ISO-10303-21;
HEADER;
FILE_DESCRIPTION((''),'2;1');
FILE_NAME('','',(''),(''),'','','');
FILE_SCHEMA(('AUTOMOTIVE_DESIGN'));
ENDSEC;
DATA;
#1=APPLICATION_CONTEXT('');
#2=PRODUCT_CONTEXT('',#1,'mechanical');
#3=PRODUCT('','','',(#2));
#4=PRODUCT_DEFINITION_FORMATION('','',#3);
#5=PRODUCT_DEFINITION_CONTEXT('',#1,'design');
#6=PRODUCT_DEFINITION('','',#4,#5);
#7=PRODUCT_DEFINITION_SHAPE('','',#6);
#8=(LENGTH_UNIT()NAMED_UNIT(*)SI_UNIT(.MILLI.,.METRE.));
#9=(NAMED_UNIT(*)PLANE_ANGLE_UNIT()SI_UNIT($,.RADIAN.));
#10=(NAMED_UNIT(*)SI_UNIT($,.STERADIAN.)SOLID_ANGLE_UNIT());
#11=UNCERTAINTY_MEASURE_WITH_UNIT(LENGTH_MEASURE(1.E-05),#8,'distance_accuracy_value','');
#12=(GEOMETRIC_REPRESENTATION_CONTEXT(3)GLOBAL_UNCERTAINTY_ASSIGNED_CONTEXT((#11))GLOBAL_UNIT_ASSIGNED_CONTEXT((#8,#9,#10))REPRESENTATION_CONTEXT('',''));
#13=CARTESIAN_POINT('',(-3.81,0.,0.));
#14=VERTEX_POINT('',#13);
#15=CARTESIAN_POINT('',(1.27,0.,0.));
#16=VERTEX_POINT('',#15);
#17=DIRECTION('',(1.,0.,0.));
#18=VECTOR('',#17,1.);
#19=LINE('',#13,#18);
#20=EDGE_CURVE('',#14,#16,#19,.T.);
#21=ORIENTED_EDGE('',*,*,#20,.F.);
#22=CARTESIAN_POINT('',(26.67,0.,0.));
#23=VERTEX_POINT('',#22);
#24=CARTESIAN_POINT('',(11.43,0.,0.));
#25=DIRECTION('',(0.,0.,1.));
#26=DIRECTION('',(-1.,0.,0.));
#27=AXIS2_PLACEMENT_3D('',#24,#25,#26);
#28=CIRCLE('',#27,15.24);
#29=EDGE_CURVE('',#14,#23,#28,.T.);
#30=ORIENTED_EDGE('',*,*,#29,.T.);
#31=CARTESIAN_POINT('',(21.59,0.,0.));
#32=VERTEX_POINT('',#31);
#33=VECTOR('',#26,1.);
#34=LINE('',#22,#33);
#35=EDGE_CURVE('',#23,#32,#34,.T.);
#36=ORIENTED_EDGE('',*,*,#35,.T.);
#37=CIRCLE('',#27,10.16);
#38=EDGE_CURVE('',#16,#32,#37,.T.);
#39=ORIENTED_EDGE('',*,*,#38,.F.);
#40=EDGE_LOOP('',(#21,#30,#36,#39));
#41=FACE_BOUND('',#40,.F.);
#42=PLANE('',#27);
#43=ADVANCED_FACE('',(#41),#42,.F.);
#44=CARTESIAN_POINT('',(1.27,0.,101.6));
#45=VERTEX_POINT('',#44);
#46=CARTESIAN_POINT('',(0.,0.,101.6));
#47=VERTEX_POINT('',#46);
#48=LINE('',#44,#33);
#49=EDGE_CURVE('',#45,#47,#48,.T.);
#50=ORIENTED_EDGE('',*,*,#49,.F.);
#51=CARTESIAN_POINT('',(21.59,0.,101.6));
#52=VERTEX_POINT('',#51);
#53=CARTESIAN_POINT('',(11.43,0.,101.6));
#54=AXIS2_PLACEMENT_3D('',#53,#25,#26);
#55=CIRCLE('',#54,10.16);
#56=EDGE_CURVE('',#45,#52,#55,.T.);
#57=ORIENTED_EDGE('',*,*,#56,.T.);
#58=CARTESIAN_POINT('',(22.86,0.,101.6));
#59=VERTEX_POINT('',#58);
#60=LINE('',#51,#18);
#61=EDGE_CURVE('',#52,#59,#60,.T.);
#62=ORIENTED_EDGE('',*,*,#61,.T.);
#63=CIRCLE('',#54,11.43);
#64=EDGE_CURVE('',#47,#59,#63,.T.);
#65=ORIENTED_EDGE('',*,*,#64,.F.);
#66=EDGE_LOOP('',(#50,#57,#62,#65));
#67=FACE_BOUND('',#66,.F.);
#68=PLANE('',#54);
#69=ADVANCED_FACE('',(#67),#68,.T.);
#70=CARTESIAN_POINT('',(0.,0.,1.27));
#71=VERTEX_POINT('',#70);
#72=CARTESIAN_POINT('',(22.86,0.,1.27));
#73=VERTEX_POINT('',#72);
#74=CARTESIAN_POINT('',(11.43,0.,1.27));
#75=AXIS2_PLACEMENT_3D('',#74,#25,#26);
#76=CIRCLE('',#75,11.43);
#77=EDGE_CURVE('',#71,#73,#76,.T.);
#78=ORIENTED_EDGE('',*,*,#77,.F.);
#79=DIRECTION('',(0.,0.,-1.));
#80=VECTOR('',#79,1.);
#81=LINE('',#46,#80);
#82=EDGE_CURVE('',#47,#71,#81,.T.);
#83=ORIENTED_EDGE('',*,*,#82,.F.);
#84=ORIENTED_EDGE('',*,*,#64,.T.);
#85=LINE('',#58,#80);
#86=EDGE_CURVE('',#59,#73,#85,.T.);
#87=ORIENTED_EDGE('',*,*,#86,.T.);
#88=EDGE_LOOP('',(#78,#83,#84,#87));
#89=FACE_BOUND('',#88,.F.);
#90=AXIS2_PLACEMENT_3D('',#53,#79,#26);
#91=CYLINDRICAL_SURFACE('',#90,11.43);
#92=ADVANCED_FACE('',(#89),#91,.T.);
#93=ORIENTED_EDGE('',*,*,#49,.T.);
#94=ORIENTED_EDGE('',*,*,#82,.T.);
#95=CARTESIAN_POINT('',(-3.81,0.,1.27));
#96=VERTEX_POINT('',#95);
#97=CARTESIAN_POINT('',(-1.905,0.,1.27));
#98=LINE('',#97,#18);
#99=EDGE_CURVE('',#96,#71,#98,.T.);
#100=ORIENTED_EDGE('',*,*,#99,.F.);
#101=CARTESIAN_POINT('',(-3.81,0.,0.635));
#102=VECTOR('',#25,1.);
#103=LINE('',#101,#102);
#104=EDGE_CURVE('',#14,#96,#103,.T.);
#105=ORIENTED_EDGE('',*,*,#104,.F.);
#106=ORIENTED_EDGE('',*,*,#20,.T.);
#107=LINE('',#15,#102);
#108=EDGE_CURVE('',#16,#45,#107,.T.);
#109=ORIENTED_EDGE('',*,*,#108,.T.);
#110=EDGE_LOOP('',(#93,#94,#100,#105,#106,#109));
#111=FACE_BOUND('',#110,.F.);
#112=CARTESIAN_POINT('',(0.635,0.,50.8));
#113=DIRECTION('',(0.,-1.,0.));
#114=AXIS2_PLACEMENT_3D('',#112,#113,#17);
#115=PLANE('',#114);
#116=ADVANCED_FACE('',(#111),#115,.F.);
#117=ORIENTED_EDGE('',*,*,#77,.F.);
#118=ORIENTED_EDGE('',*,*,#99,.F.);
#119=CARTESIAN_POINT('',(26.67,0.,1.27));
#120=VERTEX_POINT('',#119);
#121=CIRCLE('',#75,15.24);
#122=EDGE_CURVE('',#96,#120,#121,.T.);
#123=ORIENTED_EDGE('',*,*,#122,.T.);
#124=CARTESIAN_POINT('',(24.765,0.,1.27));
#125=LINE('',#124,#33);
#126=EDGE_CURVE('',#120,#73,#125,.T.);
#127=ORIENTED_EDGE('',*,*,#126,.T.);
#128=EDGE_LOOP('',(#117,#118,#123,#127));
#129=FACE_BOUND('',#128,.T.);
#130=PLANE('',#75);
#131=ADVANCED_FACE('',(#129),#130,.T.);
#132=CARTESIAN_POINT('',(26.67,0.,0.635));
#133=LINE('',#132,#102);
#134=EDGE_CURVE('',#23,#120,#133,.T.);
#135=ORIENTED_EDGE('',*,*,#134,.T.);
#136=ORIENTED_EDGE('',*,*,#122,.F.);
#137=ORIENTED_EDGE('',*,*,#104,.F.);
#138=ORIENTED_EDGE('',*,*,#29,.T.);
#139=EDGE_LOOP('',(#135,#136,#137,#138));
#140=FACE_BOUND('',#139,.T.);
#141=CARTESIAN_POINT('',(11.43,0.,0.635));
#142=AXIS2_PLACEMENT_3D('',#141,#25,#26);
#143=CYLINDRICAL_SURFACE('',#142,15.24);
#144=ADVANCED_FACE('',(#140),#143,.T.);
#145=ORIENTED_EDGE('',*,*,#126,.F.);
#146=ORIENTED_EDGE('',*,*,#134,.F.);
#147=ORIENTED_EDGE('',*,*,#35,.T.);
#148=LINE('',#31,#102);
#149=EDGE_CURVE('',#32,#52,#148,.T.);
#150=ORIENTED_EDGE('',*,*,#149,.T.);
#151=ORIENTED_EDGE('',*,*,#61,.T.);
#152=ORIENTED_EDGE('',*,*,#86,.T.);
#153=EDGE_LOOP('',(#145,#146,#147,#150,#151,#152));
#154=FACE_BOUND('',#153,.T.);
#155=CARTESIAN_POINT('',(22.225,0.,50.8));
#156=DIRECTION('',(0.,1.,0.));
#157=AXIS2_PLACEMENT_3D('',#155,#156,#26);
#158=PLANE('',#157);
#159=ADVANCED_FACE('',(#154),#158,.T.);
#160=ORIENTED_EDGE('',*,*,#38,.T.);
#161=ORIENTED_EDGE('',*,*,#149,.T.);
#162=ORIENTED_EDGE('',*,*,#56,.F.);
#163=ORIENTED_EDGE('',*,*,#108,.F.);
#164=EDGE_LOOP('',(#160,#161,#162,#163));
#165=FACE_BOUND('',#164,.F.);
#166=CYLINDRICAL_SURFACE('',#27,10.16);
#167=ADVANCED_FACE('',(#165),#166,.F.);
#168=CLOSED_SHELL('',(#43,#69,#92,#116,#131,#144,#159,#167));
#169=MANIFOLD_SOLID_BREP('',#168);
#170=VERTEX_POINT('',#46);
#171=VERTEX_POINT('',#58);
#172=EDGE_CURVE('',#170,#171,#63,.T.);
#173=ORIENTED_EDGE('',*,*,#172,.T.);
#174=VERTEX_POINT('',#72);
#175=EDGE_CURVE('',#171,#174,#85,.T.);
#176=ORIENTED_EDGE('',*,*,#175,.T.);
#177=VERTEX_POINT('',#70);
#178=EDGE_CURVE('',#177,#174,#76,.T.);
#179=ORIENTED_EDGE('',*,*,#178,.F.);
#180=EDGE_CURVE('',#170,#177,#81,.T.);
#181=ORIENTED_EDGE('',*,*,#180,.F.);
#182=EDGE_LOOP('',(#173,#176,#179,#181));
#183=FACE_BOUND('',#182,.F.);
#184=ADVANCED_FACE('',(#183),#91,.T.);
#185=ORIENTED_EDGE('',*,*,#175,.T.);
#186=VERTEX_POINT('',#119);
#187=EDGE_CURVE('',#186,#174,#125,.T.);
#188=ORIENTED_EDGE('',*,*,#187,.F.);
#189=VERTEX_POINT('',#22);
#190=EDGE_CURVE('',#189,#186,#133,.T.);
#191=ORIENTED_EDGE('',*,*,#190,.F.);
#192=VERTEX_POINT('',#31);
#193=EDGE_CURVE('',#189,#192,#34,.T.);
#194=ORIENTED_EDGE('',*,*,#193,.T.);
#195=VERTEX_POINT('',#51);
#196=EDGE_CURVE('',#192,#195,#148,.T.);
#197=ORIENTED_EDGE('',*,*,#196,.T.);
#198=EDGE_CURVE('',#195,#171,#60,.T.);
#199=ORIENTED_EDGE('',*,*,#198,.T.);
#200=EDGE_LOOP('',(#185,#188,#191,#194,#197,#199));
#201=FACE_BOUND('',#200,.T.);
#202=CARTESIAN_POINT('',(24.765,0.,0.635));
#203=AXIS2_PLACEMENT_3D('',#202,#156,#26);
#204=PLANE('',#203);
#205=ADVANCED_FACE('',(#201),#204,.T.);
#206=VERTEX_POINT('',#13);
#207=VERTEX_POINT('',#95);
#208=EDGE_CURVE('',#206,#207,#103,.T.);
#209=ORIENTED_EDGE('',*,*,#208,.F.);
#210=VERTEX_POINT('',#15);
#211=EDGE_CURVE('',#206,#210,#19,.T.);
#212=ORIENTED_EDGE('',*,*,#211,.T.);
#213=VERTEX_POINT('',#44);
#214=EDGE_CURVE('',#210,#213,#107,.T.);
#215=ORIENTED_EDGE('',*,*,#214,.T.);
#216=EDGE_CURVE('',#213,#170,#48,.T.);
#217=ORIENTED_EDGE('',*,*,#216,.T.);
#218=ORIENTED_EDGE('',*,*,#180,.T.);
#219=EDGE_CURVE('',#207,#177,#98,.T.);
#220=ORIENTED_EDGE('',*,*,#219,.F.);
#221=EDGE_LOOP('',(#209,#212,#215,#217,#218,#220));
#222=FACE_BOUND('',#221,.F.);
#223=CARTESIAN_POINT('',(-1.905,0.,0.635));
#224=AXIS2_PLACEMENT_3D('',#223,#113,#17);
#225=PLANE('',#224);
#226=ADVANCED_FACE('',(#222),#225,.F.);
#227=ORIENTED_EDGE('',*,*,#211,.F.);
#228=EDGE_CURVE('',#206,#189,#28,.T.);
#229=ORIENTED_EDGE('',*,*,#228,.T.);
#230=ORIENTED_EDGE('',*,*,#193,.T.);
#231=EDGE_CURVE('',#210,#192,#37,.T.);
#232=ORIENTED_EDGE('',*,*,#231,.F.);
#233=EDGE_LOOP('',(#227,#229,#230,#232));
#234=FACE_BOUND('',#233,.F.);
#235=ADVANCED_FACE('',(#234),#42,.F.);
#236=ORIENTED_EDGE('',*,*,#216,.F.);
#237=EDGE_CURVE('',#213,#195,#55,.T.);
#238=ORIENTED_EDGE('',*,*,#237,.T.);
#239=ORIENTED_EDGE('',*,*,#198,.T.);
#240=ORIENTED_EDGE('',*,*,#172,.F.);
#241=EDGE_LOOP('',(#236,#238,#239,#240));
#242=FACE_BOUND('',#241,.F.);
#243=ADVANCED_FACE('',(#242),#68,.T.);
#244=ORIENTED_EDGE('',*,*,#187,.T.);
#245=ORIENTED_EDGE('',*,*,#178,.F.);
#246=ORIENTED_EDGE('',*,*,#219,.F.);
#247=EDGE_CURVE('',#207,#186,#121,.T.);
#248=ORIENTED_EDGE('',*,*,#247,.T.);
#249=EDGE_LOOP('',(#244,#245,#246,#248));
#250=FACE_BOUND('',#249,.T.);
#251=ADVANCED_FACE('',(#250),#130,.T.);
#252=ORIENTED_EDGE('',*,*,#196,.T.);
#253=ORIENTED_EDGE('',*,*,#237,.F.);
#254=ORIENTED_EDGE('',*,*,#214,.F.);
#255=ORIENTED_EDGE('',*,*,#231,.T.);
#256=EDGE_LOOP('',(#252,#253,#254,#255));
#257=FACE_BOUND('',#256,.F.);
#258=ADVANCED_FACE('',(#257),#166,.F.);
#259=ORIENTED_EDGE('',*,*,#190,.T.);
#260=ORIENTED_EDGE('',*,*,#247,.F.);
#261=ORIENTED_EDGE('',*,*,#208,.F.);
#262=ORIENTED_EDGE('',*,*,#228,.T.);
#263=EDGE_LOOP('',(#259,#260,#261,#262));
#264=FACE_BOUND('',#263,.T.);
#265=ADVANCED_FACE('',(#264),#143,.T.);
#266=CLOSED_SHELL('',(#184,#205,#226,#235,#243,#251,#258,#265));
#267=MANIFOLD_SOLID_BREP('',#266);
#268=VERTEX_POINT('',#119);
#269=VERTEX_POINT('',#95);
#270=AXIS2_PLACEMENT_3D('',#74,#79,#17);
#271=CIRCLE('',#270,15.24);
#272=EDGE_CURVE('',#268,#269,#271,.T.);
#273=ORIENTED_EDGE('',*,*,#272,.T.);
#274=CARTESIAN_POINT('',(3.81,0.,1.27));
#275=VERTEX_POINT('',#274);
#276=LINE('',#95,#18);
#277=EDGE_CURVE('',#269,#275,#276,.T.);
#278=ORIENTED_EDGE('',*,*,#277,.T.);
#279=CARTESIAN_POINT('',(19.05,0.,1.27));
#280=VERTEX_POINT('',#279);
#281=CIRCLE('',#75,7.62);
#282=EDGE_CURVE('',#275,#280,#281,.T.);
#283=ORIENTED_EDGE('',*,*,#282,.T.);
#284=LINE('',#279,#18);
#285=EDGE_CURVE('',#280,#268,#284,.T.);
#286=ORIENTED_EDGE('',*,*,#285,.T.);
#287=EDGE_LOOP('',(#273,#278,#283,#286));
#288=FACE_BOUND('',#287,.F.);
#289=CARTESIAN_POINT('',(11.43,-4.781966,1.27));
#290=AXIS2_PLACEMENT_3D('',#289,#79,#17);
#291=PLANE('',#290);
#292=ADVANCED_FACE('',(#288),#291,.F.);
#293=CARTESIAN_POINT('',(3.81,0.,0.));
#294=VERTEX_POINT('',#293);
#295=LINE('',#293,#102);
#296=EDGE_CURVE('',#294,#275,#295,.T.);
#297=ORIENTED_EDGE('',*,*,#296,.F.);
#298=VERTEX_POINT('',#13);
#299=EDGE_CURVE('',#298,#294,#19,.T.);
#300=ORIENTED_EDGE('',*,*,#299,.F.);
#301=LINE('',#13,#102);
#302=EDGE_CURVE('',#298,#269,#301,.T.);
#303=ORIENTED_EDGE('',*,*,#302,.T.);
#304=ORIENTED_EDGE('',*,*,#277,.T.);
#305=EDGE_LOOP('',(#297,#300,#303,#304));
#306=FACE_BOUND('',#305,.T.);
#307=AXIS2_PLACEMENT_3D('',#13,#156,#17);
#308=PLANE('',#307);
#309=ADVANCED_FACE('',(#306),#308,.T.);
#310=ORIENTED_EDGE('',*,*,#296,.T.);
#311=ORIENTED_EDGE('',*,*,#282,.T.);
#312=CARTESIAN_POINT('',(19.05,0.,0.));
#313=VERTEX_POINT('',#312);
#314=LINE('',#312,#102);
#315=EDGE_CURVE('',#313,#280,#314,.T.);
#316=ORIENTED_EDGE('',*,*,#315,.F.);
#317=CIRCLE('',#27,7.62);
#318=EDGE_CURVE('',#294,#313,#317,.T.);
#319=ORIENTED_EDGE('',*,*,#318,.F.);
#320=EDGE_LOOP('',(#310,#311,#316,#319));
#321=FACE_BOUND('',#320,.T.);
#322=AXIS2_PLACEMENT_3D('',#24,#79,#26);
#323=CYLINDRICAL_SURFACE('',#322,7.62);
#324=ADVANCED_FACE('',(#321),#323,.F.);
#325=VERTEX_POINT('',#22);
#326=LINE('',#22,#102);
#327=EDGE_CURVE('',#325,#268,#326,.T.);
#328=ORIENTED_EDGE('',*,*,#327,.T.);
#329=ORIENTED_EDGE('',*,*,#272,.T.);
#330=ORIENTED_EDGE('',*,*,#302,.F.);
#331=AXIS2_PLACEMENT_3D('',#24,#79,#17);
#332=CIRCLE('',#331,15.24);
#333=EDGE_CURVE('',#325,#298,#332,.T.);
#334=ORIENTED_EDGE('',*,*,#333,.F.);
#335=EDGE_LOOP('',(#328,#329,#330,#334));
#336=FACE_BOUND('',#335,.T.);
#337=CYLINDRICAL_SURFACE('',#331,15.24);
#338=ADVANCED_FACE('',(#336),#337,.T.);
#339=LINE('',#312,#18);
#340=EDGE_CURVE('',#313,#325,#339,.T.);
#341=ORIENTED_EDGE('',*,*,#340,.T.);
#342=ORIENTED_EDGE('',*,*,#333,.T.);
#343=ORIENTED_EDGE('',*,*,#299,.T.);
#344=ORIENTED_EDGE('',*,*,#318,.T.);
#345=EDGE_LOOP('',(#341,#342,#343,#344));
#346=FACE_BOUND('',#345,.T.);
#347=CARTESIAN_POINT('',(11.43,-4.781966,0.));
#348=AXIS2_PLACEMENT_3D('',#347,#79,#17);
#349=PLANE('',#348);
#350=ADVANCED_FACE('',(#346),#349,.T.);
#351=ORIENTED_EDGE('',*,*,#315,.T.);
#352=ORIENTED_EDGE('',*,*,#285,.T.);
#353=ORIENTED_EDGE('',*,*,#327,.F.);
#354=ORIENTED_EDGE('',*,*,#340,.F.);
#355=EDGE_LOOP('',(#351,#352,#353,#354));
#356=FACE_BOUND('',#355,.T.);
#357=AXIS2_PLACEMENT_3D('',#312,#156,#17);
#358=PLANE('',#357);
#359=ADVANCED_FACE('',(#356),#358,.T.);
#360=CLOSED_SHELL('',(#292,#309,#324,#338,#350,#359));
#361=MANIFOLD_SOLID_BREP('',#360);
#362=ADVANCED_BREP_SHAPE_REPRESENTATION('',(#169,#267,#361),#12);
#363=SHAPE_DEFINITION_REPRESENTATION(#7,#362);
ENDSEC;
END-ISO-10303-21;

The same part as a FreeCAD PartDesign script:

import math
import FreeCAD as App
import Part
import Sketcher

V = App.Vector
Q = App.Units.Quantity


def add_polygon(sketch, points):
    """Adds a closed chain of lines whose ends are joined by coincident constraints."""
    first, n = sketch.GeometryCount, len(points)
    for a, b in zip(points, points[1:] + points[:1]):
        sketch.addGeometry(Part.LineSegment(App.Vector(*a, 0), App.Vector(*b, 0)), False)
    for i in range(n):
        sketch.addConstraint(Sketcher.Constraint("Coincident", first + i, 2, first + (i + 1) % n, 1))

doc = App.newDocument("Part")
body = doc.addObject("PartDesign::Body", "Body")

# Sketch on XZ plane
sketch1 = doc.addObject("Sketcher::SketchObject", "Sketch")
body.addObject(sketch1)
sketch1.AttachmentSupport = (doc.XZ_Plane, [""])
sketch1.MapMode = "FlatFace"
add_polygon(sketch1, [(-3.8, 1.3), (-3.8, 0), (1.3, 0), (1.3, 101.6), (0, 101.6), (0, 1.3)])  # lines 0-5
sketch1.addGeometry(Part.LineSegment(V(11.4, 0, 0), V(11.4, 101.6, 0)), True)  # axis
sketch1.addConstraint(Sketcher.Constraint("Vertical", 0))
sketch1.addConstraint(Sketcher.Constraint("Horizontal", 1))
sketch1.addConstraint(Sketcher.Constraint("Vertical", 2))
sketch1.addConstraint(Sketcher.Constraint("Horizontal", 3))
sketch1.addConstraint(Sketcher.Constraint("Vertical", 4))
sketch1.addConstraint(Sketcher.Constraint("Horizontal", 5))
sketch1.addConstraint(Sketcher.Constraint("Vertical", 6))
sketch1.addConstraint(Sketcher.Constraint("PointOnObject", 0, 2, -1))
sketch1.addConstraint(Sketcher.Constraint("PointOnObject", 3, 2, -2))
sketch1.addConstraint(Sketcher.Constraint("PointOnObject", 6, 1, -1))
sketch1.addConstraint(Sketcher.Constraint("Horizontal", 3, 2, 6, 2))
sketch1.addConstraint(Sketcher.Constraint("Equal", 3, 0))
sketch1.addConstraint(Sketcher.Constraint("DistanceY", 2, 1, 2, 2, Q("4 in")))
sketch1.addConstraint(Sketcher.Constraint("DistanceX", 1, 1, 1, 2, Q("0.2 in")))
sketch1.addConstraint(Sketcher.Constraint("DistanceX", 3, 2, 3, 1, Q("0.05 in")))
sketch1.addConstraint(Sketcher.Constraint("DistanceX", 1, 2, 6, 1, Q("0.4 in")))
revolution = doc.addObject("PartDesign::Revolution", "Revolution")
body.addObject(revolution)
revolution.Profile = sketch1
revolution.ReferenceAxis = (sketch1, ["Axis0"])
revolution.Angle = 180
body2 = doc.addObject("PartDesign::Body", "Body001")

# Sketch on XZ plane
sketch2 = doc.addObject("Sketcher::SketchObject", "Sketch001")
body2.addObject(sketch2)
sketch2.AttachmentSupport = (doc.getObject("XZ_Plane001"), [""])
sketch2.MapMode = "FlatFace"
add_polygon(sketch2, [(1.3, 0), (1.3, 101.6), (0, 101.6), (0, 1.3), (-3.8, 1.3), (-3.8, 0)])  # lines 0-5
sketch2.addGeometry(Part.LineSegment(V(11.4, 0, 0), V(11.4, 101.6, 0)), True)  # axis
sketch2.addConstraint(Sketcher.Constraint("Vertical", 0))
sketch2.addConstraint(Sketcher.Constraint("Horizontal", 1))
sketch2.addConstraint(Sketcher.Constraint("Vertical", 2))
sketch2.addConstraint(Sketcher.Constraint("Horizontal", 3))
sketch2.addConstraint(Sketcher.Constraint("Vertical", 4))
sketch2.addConstraint(Sketcher.Constraint("Horizontal", 5))
sketch2.addConstraint(Sketcher.Constraint("Vertical", 6))
sketch2.addConstraint(Sketcher.Constraint("PointOnObject", 1, 2, -2))
sketch2.addConstraint(Sketcher.Constraint("PointOnObject", 4, 2, -1))
sketch2.addConstraint(Sketcher.Constraint("PointOnObject", 6, 1, -1))
sketch2.addConstraint(Sketcher.Constraint("Horizontal", 1, 2, 6, 2))
sketch2.addConstraint(Sketcher.Constraint("Equal", 1, 4))
sketch2.addConstraint(Sketcher.Constraint("DistanceY", 0, 1, 0, 2, Q("4 in")))
sketch2.addConstraint(Sketcher.Constraint("DistanceX", 5, 1, 5, 2, Q("0.2 in")))
sketch2.addConstraint(Sketcher.Constraint("DistanceX", 1, 2, 1, 1, Q("0.05 in")))
sketch2.addConstraint(Sketcher.Constraint("DistanceX", 5, 2, 6, 1, Q("0.4 in")))
revolution2 = doc.addObject("PartDesign::Revolution", "Revolution001")
body2.addObject(revolution2)
revolution2.Profile = sketch2
revolution2.ReferenceAxis = (sketch2, ["Axis0"])
revolution2.Angle = 180
body3 = doc.addObject("PartDesign::Body", "Body002")

# Sketch on XY plane
sketch3 = doc.addObject("Sketcher::SketchObject", "Sketch002")
body3.addObject(sketch3)
sketch3.AttachmentSupport = (doc.getObject("XY_Plane002"), [""])
sketch3.MapMode = "FlatFace"
sketch3.addGeometry(Part.ArcOfCircle(Part.Circle(V(11, 0, 0), V(0, 0, 1), 8), math.radians(180), math.radians(360)), False)
sketch3.addGeometry(Part.LineSegment(V(19, 0, 0), V(27, 0, 0)), False)
sketch3.addGeometry(Part.ArcOfCircle(Part.Circle(V(11, 0, 0), V(0, 0, 1), 15), math.radians(180), math.radians(360)), False)
sketch3.addGeometry(Part.LineSegment(V(-4, 0, 0), V(4, 0, 0)), False)
sketch3.addConstraint(Sketcher.Constraint("Coincident", 0, 2, 1, 1))
sketch3.addConstraint(Sketcher.Constraint("Coincident", 1, 2, 2, 2))
sketch3.addConstraint(Sketcher.Constraint("Coincident", 2, 1, 3, 1))
sketch3.addConstraint(Sketcher.Constraint("Coincident", 3, 2, 0, 1))
sketch3.addConstraint(Sketcher.Constraint("Horizontal", 1))
sketch3.addConstraint(Sketcher.Constraint("Horizontal", 3))
sketch3.addConstraint(Sketcher.Constraint("Coincident", 2, 3, 0, 3))
sketch3.addConstraint(Sketcher.Constraint("Symmetric", 2, 1, 3, 2, -1, 1))
sketch3.addConstraint(Sketcher.Constraint("PointOnObject", 0, 3, -1))
sketch3.addConstraint(Sketcher.Constraint("PointOnObject", 0, 2, -1))
sketch3.addConstraint(Sketcher.Constraint("Radius", 0, Q("0.3 in")))
sketch3.addConstraint(Sketcher.Constraint("Radius", 2, Q("0.6 in")))
pad1 = doc.addObject("PartDesign::Pad", "Pad")
body3.addObject(pad1)
pad1.Profile = sketch3
pad1.Length = Q("0.05 in")

doc.recompute()
